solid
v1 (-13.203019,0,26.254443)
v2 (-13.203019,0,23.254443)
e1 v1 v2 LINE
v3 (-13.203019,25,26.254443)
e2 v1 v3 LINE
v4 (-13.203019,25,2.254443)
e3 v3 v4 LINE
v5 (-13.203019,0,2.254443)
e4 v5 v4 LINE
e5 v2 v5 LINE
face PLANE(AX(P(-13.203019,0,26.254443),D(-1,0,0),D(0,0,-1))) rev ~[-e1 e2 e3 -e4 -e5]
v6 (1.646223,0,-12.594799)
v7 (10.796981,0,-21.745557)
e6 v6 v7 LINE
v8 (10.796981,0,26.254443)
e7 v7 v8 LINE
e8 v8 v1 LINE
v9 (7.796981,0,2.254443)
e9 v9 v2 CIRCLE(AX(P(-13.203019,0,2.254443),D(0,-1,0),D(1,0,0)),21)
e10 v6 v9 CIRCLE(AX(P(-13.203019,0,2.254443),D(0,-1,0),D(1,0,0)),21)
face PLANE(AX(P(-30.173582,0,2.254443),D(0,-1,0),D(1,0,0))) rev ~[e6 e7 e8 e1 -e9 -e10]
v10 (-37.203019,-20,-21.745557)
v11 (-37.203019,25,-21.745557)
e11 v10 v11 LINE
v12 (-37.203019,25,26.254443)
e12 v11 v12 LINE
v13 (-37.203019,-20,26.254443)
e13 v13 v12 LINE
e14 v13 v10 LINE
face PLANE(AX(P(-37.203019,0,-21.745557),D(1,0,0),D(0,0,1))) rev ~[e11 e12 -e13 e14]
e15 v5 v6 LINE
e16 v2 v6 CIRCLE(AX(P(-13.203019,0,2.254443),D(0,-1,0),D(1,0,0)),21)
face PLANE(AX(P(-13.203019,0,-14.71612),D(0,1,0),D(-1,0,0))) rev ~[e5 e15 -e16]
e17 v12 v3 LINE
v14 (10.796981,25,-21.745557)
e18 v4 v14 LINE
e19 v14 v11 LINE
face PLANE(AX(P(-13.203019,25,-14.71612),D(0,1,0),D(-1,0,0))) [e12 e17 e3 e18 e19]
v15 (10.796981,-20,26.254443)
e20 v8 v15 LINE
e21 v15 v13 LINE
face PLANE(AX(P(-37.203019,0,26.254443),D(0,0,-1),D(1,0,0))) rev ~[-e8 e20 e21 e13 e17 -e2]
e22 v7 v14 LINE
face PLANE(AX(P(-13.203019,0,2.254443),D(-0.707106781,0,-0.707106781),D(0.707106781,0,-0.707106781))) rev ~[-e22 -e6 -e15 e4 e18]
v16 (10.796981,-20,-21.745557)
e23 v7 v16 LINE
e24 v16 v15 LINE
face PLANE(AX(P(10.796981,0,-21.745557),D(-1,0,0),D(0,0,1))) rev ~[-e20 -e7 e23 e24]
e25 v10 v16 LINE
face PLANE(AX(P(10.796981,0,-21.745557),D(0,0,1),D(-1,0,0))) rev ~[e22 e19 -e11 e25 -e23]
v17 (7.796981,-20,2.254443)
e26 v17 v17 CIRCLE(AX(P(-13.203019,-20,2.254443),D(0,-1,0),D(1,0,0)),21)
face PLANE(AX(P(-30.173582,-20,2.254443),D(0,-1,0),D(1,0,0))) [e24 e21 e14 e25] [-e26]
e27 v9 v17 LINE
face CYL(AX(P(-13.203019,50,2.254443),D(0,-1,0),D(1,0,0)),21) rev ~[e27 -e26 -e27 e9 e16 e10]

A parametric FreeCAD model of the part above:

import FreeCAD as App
import Part
import Sketcher

doc = App.newDocument("Part")
body = doc.addObject("PartDesign::Body", "Body")

# Sketch on XZ plane
sketch1 = doc.addObject("Sketcher::SketchObject", "Sketch")
body.addObject(sketch1)
sketch1.AttachmentSupport = (doc.XZ_Plane, [""])
sketch1.MapMode = "FlatFace"
sketch1.addGeometry([
    Part.LineSegment(App.Vector(-37, 26, 0), App.Vector(-37, -22, 0)),
    Part.LineSegment(App.Vector(-37, -22, 0), App.Vector(11, -22, 0)),
    Part.LineSegment(App.Vector(11, -22, 0), App.Vector(11, 26, 0)),
    Part.LineSegment(App.Vector(11, 26, 0), App.Vector(-37, 26, 0)),
], False)
sketch1.addConstraint([
    Sketcher.Constraint("Coincident", 0, 2, 1, 1),
    Sketcher.Constraint("Coincident", 1, 2, 2, 1),
    Sketcher.Constraint("Coincident", 2, 2, 3, 1),
    Sketcher.Constraint("Coincident", 3, 2, 0, 1),
    Sketcher.Constraint("Vertical", 0),
    Sketcher.Constraint("Horizontal", 1),
    Sketcher.Constraint("Vertical", 2),
    Sketcher.Constraint("Horizontal", 3),
    Sketcher.Constraint("Equal", 3, 0),
    Sketcher.Constraint("DistanceX", 1, 1, 1, 2, 48.0),
    Sketcher.Constraint("DistanceX", 0, 2, -1, 1, 37.203019),
    Sketcher.Constraint("DistanceY", 0, 2, -1, 1, 21.745557),
])
pad1 = doc.addObject("PartDesign::Pad", "Pad")
body.addObject(pad1)
pad1.Profile = sketch1
pad1.Length = 20

# Sketch on XZ plane
sketch2 = doc.addObject("Sketcher::SketchObject", "Sketch001")
body.addObject(sketch2)
sketch2.AttachmentSupport = (doc.XZ_Plane, [""])
sketch2.MapMode = "FlatFace"
sketch2.addGeometry(Part.Circle(App.Vector(-13, 2, 0), App.Vector(0, 0, 1), 21), False)
sketch2.addConstraint([
    Sketcher.Constraint("Diameter", 0, 42.0),
    Sketcher.Constraint("DistanceX", 0, 3, -1, 1, 13.203019),
    Sketcher.Constraint("DistanceY", -1, 1, 0, 3, 2.254443),
])
doc.recompute()
hole = doc.addObject("PartDesign::Hole", "Hole")
body.addObject(hole)
hole.Profile = sketch2
hole.ThreadType = "None"
hole.Diameter = 42
hole.DepthType = "Dimension"
hole.Depth = 50
hole.DrillPoint = "Angled"
hole.DrillPointAngle = 118
hole.Reversed = True

# Sketch on XZ plane
sketch3 = doc.addObject("Sketcher::SketchObject", "Sketch002")
body.addObject(sketch3)
sketch3.AttachmentSupport = (doc.XZ_Plane, [""])
sketch3.MapMode = "FlatFace"
sketch3.addGeometry([
    Part.LineSegment(App.Vector(11, -22, 0), App.Vector(-37, -22, 0)),  # 0
    Part.LineSegment(App.Vector(-37, -22, 0), App.Vector(-37, 26, 0)),  # 1
    Part.LineSegment(App.Vector(-37, 26, 0), App.Vector(-13, 26, 0)),  # 2
    Part.LineSegment(App.Vector(-13, 26, 0), App.Vector(-13, 2, 0)),  # 3
    Part.LineSegment(App.Vector(-13, 2, 0), App.Vector(11, -22, 0)),  # 4
], False)
sketch3.addConstraint([
    Sketcher.Constraint("Coincident", 0, 2, 1, 1),
    Sketcher.Constraint("Coincident", 1, 2, 2, 1),
    Sketcher.Constraint("Coincident", 2, 2, 3, 1),
    Sketcher.Constraint("Coincident", 3, 2, 4, 1),
    Sketcher.Constraint("Coincident", 4, 2, 0, 1),
    Sketcher.Constraint("Horizontal", 0),
    Sketcher.Constraint("Vertical", 1),
    Sketcher.Constraint("Horizontal", 2),
    Sketcher.Constraint("Vertical", 3),
    Sketcher.Constraint("Equal", 0, 1),
    Sketcher.Constraint("Equal", 2, 3),
    Sketcher.Constraint("DistanceX", 0, 2, 0, 1, 48.0),
    Sketcher.Constraint("DistanceX", 2, 1, 2, 2, 24.0),
    Sketcher.Constraint("DistanceX", 0, 2, -1, 1, 37.203019),
    Sketcher.Constraint("DistanceY", 0, 2, -1, 1, 21.745557),
])
pad2 = doc.addObject("PartDesign::Pad", "Pad001")
body.addObject(pad2)
pad2.Profile = sketch3
pad2.Length = 25
pad2.Reversed = True

doc.recompute()
